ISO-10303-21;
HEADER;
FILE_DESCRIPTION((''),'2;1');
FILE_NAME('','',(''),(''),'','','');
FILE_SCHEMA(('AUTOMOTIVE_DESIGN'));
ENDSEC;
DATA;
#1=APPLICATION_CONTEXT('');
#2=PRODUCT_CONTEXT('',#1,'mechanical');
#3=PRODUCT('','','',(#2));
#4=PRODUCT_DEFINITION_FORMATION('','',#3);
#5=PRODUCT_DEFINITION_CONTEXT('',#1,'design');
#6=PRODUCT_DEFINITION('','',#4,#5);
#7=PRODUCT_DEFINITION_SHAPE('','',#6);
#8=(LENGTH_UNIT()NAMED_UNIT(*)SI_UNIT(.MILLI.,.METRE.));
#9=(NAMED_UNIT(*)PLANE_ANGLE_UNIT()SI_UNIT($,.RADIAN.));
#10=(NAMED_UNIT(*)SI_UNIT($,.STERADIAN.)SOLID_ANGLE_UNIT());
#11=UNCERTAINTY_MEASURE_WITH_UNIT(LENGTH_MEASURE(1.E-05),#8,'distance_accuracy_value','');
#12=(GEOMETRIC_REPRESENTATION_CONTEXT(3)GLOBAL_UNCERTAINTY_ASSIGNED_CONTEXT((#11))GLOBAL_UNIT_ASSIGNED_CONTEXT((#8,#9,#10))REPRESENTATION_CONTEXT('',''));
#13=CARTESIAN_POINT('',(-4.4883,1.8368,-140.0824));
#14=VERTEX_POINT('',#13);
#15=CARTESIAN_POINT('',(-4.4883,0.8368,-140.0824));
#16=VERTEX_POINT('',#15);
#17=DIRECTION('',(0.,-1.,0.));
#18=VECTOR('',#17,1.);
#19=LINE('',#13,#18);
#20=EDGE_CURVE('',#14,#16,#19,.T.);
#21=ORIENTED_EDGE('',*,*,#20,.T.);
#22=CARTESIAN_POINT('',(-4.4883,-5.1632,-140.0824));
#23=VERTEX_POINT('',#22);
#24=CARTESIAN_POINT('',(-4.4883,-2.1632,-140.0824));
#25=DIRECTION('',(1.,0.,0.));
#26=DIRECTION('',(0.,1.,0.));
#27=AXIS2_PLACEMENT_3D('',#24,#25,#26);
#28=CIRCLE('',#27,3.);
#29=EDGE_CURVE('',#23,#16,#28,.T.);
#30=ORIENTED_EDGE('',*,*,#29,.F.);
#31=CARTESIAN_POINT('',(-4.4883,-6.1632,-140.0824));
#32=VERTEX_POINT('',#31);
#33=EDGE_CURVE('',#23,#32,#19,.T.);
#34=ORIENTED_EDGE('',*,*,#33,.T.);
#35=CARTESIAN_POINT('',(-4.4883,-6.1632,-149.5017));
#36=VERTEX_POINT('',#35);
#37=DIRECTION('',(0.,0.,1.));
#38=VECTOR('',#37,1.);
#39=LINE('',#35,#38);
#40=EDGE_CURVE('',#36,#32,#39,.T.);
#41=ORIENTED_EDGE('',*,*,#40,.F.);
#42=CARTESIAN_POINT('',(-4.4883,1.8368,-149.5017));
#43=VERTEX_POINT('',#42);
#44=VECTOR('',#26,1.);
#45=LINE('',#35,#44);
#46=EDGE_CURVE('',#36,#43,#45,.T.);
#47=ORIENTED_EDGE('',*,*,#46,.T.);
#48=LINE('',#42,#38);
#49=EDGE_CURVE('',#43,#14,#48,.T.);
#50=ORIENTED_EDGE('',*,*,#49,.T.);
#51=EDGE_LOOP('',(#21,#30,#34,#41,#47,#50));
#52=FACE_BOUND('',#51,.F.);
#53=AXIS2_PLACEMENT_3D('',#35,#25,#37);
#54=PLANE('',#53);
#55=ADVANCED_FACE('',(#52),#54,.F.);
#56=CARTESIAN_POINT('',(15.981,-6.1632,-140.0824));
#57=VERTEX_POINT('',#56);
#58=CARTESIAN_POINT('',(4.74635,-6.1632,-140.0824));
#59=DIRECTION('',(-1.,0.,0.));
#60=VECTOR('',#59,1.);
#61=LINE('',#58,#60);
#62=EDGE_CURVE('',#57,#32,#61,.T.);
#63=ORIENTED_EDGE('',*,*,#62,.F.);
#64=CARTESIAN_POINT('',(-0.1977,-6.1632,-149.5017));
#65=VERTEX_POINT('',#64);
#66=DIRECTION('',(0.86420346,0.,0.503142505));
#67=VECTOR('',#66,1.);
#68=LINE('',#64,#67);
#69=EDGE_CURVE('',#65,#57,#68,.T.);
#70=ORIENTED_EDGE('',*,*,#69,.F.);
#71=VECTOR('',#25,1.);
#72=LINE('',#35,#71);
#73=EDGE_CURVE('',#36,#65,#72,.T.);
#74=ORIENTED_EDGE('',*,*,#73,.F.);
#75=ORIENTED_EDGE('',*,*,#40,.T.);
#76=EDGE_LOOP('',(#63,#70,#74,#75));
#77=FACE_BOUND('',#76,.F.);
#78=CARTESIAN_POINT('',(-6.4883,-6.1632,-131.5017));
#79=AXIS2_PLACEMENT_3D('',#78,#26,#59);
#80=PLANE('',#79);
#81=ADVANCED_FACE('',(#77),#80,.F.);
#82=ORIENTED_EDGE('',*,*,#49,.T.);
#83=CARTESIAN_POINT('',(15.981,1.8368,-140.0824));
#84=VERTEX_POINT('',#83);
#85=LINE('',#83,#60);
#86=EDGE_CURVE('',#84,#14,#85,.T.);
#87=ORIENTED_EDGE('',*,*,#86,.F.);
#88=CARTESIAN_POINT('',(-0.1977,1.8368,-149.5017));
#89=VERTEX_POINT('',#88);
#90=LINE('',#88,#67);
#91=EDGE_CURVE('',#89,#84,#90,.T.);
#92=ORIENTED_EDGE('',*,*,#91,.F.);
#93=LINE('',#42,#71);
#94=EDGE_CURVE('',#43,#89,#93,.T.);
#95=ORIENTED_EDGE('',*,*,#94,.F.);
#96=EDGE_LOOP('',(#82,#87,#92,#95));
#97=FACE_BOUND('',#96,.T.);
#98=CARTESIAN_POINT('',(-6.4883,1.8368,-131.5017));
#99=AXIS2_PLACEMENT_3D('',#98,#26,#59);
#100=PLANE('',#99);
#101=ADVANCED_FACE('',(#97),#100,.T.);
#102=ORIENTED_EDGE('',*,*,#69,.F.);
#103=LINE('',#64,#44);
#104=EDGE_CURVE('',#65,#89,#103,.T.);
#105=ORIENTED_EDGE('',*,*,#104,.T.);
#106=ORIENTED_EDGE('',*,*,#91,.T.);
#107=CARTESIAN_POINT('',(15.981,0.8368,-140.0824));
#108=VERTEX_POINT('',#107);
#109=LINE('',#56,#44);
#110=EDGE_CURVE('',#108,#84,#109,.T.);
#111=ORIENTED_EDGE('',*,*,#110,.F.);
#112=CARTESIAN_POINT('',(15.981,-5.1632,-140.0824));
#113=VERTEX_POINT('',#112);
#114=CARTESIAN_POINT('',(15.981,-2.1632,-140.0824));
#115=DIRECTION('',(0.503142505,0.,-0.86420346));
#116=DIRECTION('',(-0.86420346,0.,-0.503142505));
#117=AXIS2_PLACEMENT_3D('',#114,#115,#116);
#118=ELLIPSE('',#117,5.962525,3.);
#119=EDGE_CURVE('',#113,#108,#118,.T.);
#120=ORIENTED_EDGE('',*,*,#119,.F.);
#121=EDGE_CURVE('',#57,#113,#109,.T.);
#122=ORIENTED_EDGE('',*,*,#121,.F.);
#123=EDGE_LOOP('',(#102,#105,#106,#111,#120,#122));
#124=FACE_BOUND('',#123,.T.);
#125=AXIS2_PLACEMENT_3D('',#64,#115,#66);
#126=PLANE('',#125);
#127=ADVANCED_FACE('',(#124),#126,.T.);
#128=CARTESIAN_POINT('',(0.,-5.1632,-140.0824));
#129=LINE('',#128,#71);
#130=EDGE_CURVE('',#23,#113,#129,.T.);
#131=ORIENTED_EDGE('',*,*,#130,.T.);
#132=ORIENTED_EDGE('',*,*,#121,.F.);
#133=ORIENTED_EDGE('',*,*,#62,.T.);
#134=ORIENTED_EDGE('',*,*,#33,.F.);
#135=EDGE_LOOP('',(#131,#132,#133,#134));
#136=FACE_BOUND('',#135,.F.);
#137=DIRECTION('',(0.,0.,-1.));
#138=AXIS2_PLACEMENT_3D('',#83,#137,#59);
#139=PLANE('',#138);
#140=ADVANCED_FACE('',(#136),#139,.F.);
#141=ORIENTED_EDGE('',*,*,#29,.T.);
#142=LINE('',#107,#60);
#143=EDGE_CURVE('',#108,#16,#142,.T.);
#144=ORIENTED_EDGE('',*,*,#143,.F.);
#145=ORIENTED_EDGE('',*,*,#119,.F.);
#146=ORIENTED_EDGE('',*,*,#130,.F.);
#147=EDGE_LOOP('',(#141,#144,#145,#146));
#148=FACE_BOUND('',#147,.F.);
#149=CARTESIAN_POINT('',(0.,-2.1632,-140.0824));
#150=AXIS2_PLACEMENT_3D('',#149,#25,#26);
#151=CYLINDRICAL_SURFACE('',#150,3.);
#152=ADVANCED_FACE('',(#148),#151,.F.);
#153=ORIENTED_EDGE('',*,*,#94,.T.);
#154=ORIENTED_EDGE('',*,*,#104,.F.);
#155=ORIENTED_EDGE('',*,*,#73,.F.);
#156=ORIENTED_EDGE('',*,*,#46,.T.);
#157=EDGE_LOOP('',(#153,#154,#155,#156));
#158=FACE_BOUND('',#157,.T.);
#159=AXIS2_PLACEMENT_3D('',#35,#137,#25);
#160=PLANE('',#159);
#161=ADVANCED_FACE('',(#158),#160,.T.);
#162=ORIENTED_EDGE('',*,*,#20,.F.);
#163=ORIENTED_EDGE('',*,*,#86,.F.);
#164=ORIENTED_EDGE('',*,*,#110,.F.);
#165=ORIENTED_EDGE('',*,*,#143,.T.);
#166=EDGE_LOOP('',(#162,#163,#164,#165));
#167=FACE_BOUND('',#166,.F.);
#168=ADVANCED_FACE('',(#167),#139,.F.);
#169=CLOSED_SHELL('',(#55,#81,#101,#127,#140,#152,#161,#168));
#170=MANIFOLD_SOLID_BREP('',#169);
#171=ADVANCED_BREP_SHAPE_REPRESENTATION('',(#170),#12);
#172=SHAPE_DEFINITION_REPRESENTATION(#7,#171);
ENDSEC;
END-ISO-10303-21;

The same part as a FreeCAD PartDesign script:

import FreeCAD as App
import Part
import Sketcher
from FreeCAD import Vector
Q = App.Units.Quantity


def add_polygon(sketch, points):
    """Adds a closed chain of lines whose ends are joined by coincident constraints."""
    first, n = sketch.GeometryCount, len(points)
    for a, b in zip(points, points[1:] + points[:1]):
        sketch.addGeometry(Part.LineSegment(App.Vector(*a, 0), App.Vector(*b, 0)), False)
    for i in range(n):
        sketch.addConstraint(Sketcher.Constraint("Coincident", first + i, 2, first + (i + 1) % n, 1))

doc = App.newDocument("Part")
body = doc.addObject("PartDesign::Body", "Body")

sketch1 = body.newObject("Sketcher::SketchObject", "Sketch")
sketch1.AttachmentSupport = (doc.getObject("XZ_Plane"), [""])
sketch1.MapMode = "FlatFace"
sketch1.AttachmentOffset = App.Placement(Vector(0, 0, 6.1632), App.Rotation())
add_polygon(sketch1, [(-0.2, -149.5), (-4.5, -149.5), (-4.5, -131.5), (1, -131.5), (16, -140.1)])
sketch1.addConstraint([
    Sketcher.Constraint("Horizontal", 0),
    Sketcher.Constraint("Vertical", 1),
    Sketcher.Constraint("Horizontal", 2),
    Sketcher.Constraint("DistanceY", 1, 1, 1, 2, Q("18 mm")),
    Sketcher.Constraint("Distance", 4, Q("18.721 mm")),
    Sketcher.Constraint("DistanceX", 0, 2, 0, 1, Q("4.2906 mm")),
    Sketcher.Constraint("DistanceX", 2, 1, 2, 2, Q("5.4816 mm")),
    Sketcher.Constraint("DistanceX", -1, 1, 3, 2, Q("15.981 mm")),
    Sketcher.Constraint("Distance", 3, Q("17.2702 mm")),
    Sketcher.Constraint("DistanceY", 0, 2, -1, 1, Q("149.5017 mm")),
])
pad1 = body.newObject("PartDesign::Pad", "Pad")
pad1.Profile = sketch1
pad1.Length = 8
pad1.Reversed = True

sketch2 = body.newObject("Sketcher::SketchObject", "Sketch001")
sketch2.AttachmentSupport = (doc.getObject("YZ_Plane"), [""])
sketch2.MapMode = "FlatFace"
sketch2.addGeometry(Part.Circle(Vector(-2.2, -140.1, 0), Vector(0, 0, 1), 3), False)
sketch2.addConstraint([
    Sketcher.Constraint("Diameter", 0, Q("6 mm")),
    Sketcher.Constraint("DistanceX", 0, 3, -1, 1, Q("2.1632 mm")),
    Sketcher.Constraint("DistanceY", 0, 3, -1, 1, Q("140.0824 mm")),
])
pocket1 = body.newObject("PartDesign::Pocket", "Pocket")
pocket1.Profile = sketch2
pocket1.Type = "ThroughAll"
pocket1.Midplane = True

sketch3 = body.newObject("Sketcher::SketchObject", "Sketch002")
sketch3.AttachmentSupport = (doc.getObject("XZ_Plane"), [""])
sketch3.MapMode = "FlatFace"
sketch3.AttachmentOffset = App.Placement(Vector(0, 0, -1.8368), App.Rotation())
add_polygon(sketch3, [(16, -140), (-4, -140), (-4, -132), (16, -132)])
sketch3.addConstraint([
    Sketcher.Constraint("Horizontal", 0),
    Sketcher.Constraint("Vertical", 1),
    Sketcher.Constraint("Horizontal", 2),
    Sketcher.Constraint("Vertical", 3),
    Sketcher.Constraint("DistanceX", 0, 2, 0, 1, Q("20.4693 mm")),
    Sketcher.Constraint("DistanceY", 1, 1, 1, 2, Q("8.5807 mm")),
    Sketcher.Constraint("DistanceX", -1, 1, 2, 2, Q("15.981 mm")),
    Sketcher.Constraint("DistanceY", 0, 2, -1, 1, Q("140.0824 mm")),
])
pocket2 = body.newObject("PartDesign::Pocket", "Pocket001")
pocket2.Profile = sketch3
pocket2.Type = "ThroughAll"
pocket2.Reversed = True

doc.recompute()
